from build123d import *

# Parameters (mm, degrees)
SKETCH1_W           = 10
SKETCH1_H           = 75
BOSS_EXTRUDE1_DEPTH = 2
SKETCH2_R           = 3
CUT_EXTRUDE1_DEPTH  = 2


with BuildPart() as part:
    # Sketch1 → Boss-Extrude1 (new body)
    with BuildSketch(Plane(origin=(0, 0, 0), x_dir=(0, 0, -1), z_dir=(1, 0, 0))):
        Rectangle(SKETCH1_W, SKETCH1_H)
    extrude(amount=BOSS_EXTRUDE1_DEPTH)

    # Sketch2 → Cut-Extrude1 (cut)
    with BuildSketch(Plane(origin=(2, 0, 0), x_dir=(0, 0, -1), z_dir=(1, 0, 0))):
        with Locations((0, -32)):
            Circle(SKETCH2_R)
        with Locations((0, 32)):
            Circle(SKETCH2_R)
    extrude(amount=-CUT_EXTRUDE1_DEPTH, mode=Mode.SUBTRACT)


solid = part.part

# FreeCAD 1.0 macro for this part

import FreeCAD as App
import Part
import Sketcher
from FreeCAD import Vector

doc = App.newDocument("Part")
body = doc.addObject("PartDesign::Body", "Body")

# Sketch on YZ plane
sketch1 = body.newObject("Sketcher::SketchObject", "Sketch")
sketch1.AttachmentSupport = (doc.getObject("YZ_Plane"), [""])
sketch1.MapMode = "FlatFace"
sketch1.addGeometry(Part.LineSegment(Vector(38, 5, 0), Vector(-38, 5, 0)), False)
sketch1.addGeometry(Part.LineSegment(Vector(-38, 5, 0), Vector(-38, -5, 0)), False)
sketch1.addGeometry(Part.LineSegment(Vector(-38, -5, 0), Vector(38, -5, 0)), False)
sketch1.addGeometry(Part.LineSegment(Vector(38, -5, 0), Vector(38, 5, 0)), False)
sketch1.addConstraint(Sketcher.Constraint("Coincident", 0, 2, 1, 1))
sketch1.addConstraint(Sketcher.Constraint("Coincident", 1, 2, 2, 1))
sketch1.addConstraint(Sketcher.Constraint("Coincident", 2, 2, 3, 1))
sketch1.addConstraint(Sketcher.Constraint("Coincident", 3, 2, 0, 1))
sketch1.addConstraint(Sketcher.Constraint("Horizontal", 0))
sketch1.addConstraint(Sketcher.Constraint("Vertical", 1))
sketch1.addConstraint(Sketcher.Constraint("Horizontal", 2))
sketch1.addConstraint(Sketcher.Constraint("Vertical", 3))
sketch1.addConstraint(Sketcher.Constraint("Symmetric", 0, 2, 2, 2, -1, 1))
sketch1.addConstraint(Sketcher.Constraint("DistanceX", 0, 2, 0, 1, 75.0))
sketch1.addConstraint(Sketcher.Constraint("DistanceY", 1, 2, 1, 1, 10.0))
pad1 = body.newObject("PartDesign::Pad", "Pad")
pad1.Profile = sketch1
pad1.Length = 2

# Sketch on YZ plane
sketch2 = body.newObject("Sketcher::SketchObject", "Sketch001")
sketch2.AttachmentSupport = (doc.getObject("YZ_Plane"), [""])
sketch2.MapMode = "FlatFace"
sketch2.AttachmentOffset = App.Placement(Vector(0, 0, 2), App.Rotation())
sketch2.addGeometry(Part.Circle(Vector(-32, 0, 0), Vector(0, 0, 1), 3), False)
sketch2.addGeometry(Part.Circle(Vector(32, 0, 0), Vector(0, 0, 1), 3), False)
sketch2.addConstraint(Sketcher.Constraint("Equal", 0, 1))
sketch2.addConstraint(Sketcher.Constraint("Symmetric", 0, 3, 1, 3, -1, 1))
sketch2.addConstraint(Sketcher.Constraint("PointOnObject", 0, 3, -1))
sketch2.addConstraint(Sketcher.Constraint("Diameter", 0, 6.0))
sketch2.addConstraint(Sketcher.Constraint("DistanceX", 0, 3, -1, 1, 32.0))
pocket1 = body.newObject("PartDesign::Pocket", "Pocket")
pocket1.Profile = sketch2
pocket1.Length = 2

doc.recompute()
